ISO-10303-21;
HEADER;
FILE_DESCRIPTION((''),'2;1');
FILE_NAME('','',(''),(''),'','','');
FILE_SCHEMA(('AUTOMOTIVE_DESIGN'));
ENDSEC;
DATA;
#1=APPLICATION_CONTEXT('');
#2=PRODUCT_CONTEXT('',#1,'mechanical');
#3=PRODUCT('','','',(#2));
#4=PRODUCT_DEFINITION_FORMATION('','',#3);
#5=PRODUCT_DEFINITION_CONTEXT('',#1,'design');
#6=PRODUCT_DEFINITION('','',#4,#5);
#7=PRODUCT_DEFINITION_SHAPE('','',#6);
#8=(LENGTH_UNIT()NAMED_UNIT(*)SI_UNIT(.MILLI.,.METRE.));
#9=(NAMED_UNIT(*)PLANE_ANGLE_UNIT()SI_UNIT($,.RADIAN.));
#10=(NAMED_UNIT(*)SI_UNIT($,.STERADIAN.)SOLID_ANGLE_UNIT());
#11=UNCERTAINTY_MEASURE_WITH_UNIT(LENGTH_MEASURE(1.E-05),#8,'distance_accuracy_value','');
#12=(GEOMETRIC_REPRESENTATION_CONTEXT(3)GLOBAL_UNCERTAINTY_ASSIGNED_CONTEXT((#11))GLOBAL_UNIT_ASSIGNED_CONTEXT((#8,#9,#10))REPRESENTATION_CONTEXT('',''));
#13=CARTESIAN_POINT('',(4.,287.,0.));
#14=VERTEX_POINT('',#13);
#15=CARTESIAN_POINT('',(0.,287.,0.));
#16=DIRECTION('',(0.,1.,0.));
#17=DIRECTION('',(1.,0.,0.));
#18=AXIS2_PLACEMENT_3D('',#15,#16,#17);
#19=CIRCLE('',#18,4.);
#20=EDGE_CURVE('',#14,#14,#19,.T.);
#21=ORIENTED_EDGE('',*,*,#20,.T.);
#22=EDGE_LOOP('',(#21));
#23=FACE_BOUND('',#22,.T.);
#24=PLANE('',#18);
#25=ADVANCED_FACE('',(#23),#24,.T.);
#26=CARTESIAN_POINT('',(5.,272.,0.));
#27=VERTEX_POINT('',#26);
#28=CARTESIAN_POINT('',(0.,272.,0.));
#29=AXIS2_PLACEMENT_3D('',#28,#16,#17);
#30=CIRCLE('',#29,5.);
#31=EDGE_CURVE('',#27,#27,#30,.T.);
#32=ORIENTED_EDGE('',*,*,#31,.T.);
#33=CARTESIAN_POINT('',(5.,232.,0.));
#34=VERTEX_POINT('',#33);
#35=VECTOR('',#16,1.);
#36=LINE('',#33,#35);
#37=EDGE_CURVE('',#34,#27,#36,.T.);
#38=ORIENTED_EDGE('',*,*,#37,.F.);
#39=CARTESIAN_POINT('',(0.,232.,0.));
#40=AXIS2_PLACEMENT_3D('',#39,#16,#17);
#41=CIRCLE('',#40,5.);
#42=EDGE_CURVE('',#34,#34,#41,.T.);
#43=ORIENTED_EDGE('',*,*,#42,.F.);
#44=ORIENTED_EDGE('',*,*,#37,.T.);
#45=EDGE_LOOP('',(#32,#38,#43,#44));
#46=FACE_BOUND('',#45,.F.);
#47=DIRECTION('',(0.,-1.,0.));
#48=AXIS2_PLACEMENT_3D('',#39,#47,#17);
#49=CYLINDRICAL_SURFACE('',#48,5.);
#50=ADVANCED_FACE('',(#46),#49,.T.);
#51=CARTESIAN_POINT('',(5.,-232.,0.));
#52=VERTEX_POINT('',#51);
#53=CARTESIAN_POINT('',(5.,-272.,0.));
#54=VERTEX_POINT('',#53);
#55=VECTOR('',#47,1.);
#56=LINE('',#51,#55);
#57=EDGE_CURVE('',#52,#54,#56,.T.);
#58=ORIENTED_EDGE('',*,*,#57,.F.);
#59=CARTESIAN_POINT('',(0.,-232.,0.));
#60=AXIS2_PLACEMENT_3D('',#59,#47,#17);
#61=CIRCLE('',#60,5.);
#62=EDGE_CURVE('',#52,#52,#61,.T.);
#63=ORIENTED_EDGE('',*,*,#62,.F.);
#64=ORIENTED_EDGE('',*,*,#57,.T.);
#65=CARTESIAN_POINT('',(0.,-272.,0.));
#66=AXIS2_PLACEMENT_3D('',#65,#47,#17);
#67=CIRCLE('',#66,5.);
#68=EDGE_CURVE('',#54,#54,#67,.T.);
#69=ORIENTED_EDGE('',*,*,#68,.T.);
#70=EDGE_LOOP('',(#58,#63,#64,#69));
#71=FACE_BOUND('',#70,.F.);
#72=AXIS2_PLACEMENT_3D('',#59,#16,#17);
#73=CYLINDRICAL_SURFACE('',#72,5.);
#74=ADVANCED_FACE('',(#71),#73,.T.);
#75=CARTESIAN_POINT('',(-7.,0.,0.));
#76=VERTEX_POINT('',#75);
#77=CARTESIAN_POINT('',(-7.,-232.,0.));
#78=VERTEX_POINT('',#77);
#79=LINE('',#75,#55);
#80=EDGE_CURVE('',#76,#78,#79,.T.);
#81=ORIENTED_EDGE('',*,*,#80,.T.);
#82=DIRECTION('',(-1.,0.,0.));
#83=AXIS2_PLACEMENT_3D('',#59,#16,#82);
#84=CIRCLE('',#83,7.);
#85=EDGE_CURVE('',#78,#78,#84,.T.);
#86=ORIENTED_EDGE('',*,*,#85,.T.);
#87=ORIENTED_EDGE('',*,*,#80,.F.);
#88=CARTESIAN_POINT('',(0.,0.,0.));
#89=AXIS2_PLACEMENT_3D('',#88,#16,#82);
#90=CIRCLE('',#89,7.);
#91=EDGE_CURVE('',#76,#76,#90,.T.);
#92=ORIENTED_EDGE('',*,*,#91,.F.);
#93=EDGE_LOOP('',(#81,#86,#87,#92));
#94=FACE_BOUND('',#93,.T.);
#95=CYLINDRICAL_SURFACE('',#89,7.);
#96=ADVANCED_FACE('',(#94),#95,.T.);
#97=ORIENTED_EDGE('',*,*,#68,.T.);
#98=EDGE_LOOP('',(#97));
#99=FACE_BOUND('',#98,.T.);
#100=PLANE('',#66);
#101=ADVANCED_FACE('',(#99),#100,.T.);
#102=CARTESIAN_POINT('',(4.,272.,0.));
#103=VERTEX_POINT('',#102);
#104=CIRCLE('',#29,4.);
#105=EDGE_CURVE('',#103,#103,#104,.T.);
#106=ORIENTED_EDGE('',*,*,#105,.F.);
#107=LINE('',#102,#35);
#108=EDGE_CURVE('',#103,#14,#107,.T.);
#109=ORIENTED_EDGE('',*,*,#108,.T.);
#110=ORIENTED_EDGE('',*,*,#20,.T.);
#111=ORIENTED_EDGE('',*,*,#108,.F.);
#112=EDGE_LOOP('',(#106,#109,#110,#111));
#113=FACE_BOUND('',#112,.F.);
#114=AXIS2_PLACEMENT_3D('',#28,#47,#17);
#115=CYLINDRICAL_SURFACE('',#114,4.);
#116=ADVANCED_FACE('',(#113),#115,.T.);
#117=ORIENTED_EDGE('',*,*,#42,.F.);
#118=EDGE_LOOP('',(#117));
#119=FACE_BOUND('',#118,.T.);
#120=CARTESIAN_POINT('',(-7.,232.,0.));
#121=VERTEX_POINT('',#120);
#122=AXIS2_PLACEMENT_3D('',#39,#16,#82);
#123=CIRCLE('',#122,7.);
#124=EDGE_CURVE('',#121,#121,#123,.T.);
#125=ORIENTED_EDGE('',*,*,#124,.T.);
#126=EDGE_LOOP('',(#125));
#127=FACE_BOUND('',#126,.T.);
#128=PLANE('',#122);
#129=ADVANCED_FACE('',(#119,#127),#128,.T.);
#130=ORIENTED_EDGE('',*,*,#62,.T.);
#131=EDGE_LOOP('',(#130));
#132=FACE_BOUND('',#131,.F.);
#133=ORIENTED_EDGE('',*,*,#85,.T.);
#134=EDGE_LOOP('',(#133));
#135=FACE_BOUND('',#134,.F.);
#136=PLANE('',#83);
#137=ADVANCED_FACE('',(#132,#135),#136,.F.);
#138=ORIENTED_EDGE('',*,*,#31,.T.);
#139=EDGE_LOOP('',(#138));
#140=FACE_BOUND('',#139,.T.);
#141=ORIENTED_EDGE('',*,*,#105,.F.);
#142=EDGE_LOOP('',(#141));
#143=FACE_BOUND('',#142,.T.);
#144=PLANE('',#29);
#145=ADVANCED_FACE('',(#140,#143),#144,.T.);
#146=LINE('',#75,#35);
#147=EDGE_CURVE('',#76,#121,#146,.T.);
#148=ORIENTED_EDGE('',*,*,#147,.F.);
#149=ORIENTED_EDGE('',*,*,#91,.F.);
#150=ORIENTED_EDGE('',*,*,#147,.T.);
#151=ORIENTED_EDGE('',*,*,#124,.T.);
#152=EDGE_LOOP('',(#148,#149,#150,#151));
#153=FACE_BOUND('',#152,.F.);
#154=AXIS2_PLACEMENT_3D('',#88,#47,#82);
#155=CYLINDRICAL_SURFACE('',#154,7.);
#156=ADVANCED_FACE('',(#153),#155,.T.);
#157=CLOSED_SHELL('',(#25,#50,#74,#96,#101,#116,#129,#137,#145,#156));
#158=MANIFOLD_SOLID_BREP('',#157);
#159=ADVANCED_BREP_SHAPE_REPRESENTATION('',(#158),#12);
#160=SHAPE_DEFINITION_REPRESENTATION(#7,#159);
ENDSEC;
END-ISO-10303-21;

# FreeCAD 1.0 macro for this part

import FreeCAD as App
import Part
import Sketcher
from FreeCAD import Vector
Q = App.Units.Quantity

doc = App.newDocument("Part")
body = doc.addObject("PartDesign::Body", "Body")

# Sketch on XZ plane
sketch1 = doc.addObject("Sketcher::SketchObject", "Sketch")
body.addObject(sketch1)
sketch1.AttachmentSupport = (doc.XZ_Plane, [""])
sketch1.MapMode = "FlatFace"
sketch1.addGeometry(Part.Circle(Vector(0, 0, 0), Vector(0, 0, 1), 7), False)
sketch1.addConstraint(Sketcher.Constraint("Coincident", 0, 3, -1, 1))
sketch1.addConstraint(Sketcher.Constraint("Diameter", 0, Q("14 mm")))
pad1 = doc.addObject("PartDesign::Pad", "Pad")
body.addObject(pad1)
pad1.Profile = sketch1
pad1.Length = 464
pad1.Midplane = True

# Sketch on XZ plane
sketch2 = doc.addObject("Sketcher::SketchObject", "Sketch001")
body.addObject(sketch2)
sketch2.AttachmentSupport = (doc.XZ_Plane, [""])
sketch2.MapMode = "FlatFace"
sketch2.AttachmentOffset = App.Placement(Vector(0, 0, -232), App.Rotation())
sketch2.addGeometry(Part.Circle(Vector(0, 0, 0), Vector(0, 0, 1), 5), False)
sketch2.addConstraint(Sketcher.Constraint("Coincident", 0, 3, -1, 1))
sketch2.addConstraint(Sketcher.Constraint("Diameter", 0, Q("10 mm")))
pad2 = doc.addObject("PartDesign::Pad", "Pad001")
body.addObject(pad2)
pad2.Profile = sketch2
pad2.Length = 40
pad2.Reversed = True

# Sketch on XZ plane
sketch3 = doc.addObject("Sketcher::SketchObject", "Sketch002")
body.addObject(sketch3)
sketch3.AttachmentSupport = (doc.XZ_Plane, [""])
sketch3.MapMode = "FlatFace"
sketch3.AttachmentOffset = App.Placement(Vector(0, 0, -272), App.Rotation())
sketch3.addGeometry(Part.Circle(Vector(0, 0, 0), Vector(0, 0, 1), 4), False)
sketch3.addConstraint(Sketcher.Constraint("Coincident", 0, 3, -1, 1))
sketch3.addConstraint(Sketcher.Constraint("Diameter", 0, Q("8 mm")))
pad3 = doc.addObject("PartDesign::Pad", "Pad002")
body.addObject(pad3)
pad3.Profile = sketch3
pad3.Length = 15
pad3.Reversed = True

# Sketch on XZ plane
sketch4 = doc.addObject("Sketcher::SketchObject", "Sketch003")
body.addObject(sketch4)
sketch4.AttachmentSupport = (doc.XZ_Plane, [""])
sketch4.MapMode = "FlatFace"
sketch4.AttachmentOffset = App.Placement(Vector(0, 0, 232), App.Rotation())
sketch4.addGeometry(Part.Circle(Vector(0, 0, 0), Vector(0, 0, 1), 5), False)
sketch4.addConstraint(Sketcher.Constraint("Coincident", 0, 3, -1, 1))
sketch4.addConstraint(Sketcher.Constraint("Diameter", 0, Q("10 mm")))
pad4 = doc.addObject("PartDesign::Pad", "Pad003")
body.addObject(pad4)
pad4.Profile = sketch4
pad4.Length = 40

doc.recompute()
